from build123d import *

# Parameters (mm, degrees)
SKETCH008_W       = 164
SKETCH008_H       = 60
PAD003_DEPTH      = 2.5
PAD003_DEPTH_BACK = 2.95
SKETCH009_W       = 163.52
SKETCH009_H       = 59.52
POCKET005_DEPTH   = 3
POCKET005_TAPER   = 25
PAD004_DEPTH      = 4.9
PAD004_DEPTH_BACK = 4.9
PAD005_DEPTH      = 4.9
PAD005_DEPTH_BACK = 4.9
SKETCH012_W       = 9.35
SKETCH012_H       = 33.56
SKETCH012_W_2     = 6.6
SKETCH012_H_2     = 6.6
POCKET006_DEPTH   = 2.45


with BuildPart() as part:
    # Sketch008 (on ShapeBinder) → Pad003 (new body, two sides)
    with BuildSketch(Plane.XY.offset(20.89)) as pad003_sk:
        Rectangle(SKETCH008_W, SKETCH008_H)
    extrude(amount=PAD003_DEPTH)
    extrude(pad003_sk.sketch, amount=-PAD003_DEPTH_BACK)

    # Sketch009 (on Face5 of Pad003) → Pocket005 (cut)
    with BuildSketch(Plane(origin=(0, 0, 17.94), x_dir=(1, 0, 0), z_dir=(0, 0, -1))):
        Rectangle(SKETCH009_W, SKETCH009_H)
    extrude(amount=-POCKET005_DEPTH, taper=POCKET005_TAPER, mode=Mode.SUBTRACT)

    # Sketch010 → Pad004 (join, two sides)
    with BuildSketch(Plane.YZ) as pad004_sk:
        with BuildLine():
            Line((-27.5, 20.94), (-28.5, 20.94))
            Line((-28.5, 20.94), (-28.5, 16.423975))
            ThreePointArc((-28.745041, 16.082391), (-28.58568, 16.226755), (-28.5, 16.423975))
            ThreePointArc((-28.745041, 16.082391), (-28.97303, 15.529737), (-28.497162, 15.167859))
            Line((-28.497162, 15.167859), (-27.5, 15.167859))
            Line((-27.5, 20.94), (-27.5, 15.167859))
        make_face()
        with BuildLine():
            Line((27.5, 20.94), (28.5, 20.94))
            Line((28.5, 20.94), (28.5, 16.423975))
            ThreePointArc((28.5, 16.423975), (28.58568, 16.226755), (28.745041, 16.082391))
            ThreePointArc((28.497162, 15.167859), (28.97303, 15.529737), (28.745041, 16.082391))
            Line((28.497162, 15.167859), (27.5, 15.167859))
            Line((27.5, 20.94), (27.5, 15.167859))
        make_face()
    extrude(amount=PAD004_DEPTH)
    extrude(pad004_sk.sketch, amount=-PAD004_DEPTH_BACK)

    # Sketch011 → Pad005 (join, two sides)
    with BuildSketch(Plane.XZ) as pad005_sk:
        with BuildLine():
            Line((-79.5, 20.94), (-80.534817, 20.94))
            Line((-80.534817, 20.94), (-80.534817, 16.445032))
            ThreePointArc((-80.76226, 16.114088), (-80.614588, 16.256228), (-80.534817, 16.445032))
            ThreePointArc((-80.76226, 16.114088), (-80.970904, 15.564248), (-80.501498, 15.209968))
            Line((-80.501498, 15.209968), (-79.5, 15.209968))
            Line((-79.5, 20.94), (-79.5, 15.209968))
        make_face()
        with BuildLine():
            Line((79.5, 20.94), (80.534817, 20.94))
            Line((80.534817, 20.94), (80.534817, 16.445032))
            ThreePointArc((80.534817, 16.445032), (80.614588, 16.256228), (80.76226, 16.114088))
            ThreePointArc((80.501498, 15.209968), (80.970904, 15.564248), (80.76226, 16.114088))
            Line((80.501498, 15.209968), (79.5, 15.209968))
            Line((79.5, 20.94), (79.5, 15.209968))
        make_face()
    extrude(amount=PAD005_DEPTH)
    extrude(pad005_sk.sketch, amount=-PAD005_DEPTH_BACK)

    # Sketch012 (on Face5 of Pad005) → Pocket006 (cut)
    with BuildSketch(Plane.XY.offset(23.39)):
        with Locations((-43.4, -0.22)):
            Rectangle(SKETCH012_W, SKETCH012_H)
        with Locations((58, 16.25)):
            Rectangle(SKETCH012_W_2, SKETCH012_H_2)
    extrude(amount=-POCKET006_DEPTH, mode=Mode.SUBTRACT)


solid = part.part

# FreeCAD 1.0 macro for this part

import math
import FreeCAD as App
import Part
import Sketcher

V = App.Vector

doc = App.newDocument("Part")
body = doc.addObject("PartDesign::Body", "Body")

sketch1 = body.newObject("Sketcher::SketchObject", "Sketch")
sketch1.AttachmentSupport = (doc.getObject("XY_Plane"), [""])
sketch1.MapMode = "FlatFace"
sketch1.AttachmentOffset = App.Placement(V(0, 0, 20.89), App.Rotation())
sketch1.addGeometry([
    Part.LineSegment(V(-82, 30, 0), V(-82, -30, 0)),
    Part.LineSegment(V(-82, -30, 0), V(82, -30, 0)),
    Part.LineSegment(V(82, -30, 0), V(82, 30, 0)),
    Part.LineSegment(V(82, 30, 0), V(-82, 30, 0)),
], False)
sketch1.addConstraint([
    Sketcher.Constraint("Coincident", 0, 2, 1, 1),
    Sketcher.Constraint("Coincident", 1, 2, 2, 1),
    Sketcher.Constraint("Coincident", 2, 2, 3, 1),
    Sketcher.Constraint("Coincident", 3, 2, 0, 1),
    Sketcher.Constraint("Vertical", 0),
    Sketcher.Constraint("Horizontal", 1),
    Sketcher.Constraint("Vertical", 2),
    Sketcher.Constraint("Horizontal", 3),
    Sketcher.Constraint("Symmetric", 0, 2, 2, 2, -1, 1),
    Sketcher.Constraint("DistanceX", 1, 1, 1, 2, 164.0),
    Sketcher.Constraint("DistanceY", 0, 2, 0, 1, 60.0),
])
pad1 = body.newObject("PartDesign::Pad", "Pad")
pad1.Profile = sketch1
pad1.Type = "TwoLengths"
pad1.Length = 2.5
pad1.Length2 = 2.95

sketch2 = body.newObject("Sketcher::SketchObject", "Sketch001")
sketch2.AttachmentSupport = (doc.getObject("XY_Plane"), [""])
sketch2.MapMode = "FlatFace"
sketch2.AttachmentOffset = App.Placement(V(0, 0, 17.94), App.Rotation())
sketch2.addGeometry([
    Part.LineSegment(V(-82, -30, 0), V(-82, 30, 0)),
    Part.LineSegment(V(-82, 30, 0), V(82, 30, 0)),
    Part.LineSegment(V(82, 30, 0), V(82, -30, 0)),
    Part.LineSegment(V(82, -30, 0), V(-82, -30, 0)),
], False)
sketch2.addConstraint([
    Sketcher.Constraint("Coincident", 0, 2, 1, 1),
    Sketcher.Constraint("Coincident", 1, 2, 2, 1),
    Sketcher.Constraint("Coincident", 2, 2, 3, 1),
    Sketcher.Constraint("Coincident", 3, 2, 0, 1),
    Sketcher.Constraint("Vertical", 0),
    Sketcher.Constraint("Horizontal", 1),
    Sketcher.Constraint("Vertical", 2),
    Sketcher.Constraint("Horizontal", 3),
    Sketcher.Constraint("Symmetric", 0, 2, 2, 2, -1, 1),
    Sketcher.Constraint("DistanceX", 1, 1, 1, 2, 163.52),
    Sketcher.Constraint("DistanceY", 0, 1, 0, 2, 59.52),
])
pocket1 = body.newObject("PartDesign::Pocket", "Pocket")
pocket1.Profile = sketch2
pocket1.Length = 3
pocket1.Reversed = True
pocket1.TaperAngle = -25

sketch3 = body.newObject("Sketcher::SketchObject", "Sketch002")
sketch3.AttachmentSupport = (doc.getObject("YZ_Plane"), [""])
sketch3.MapMode = "FlatFace"
sketch3.addGeometry([
    Part.LineSegment(V(-27.5, 20.94, 0), V(-28.5, 20.94, 0)),
    Part.LineSegment(V(-28.5, 20.94, 0), V(-28.5, 16.423975, 0)),
    Part.ArcOfCircle(Part.Circle(V(-28.999996, 16.523971, 0), V(0, 0, 1), 0.509897), math.radians(-59.9992), math.radians(-11.309598)),
    Part.ArcOfCircle(Part.Circle(V(-28.499999, 15.657949, 0), V(0, 0, 1), 0.490098), math.radians(119.998989), math.radians(270.331705)),
    Part.LineSegment(V(-28.497162, 15.167859, 0), V(-27.5, 15.167859, 0)),
    Part.LineSegment(V(-27.5, 15.167859, 0), V(-27.5, 20.94, 0)),
    Part.LineSegment(V(28.5, 20.94, 0), V(27.5, 20.94, 0)),
    Part.LineSegment(V(27.5, 20.94, 0), V(27.5, 15.167859, 0)),
    Part.LineSegment(V(27.5, 15.167859, 0), V(28.497162, 15.167859, 0)),
    Part.ArcOfCircle(Part.Circle(V(28.499999, 15.657949, 0), V(0, 0, 1), 0.490098), math.radians(-90.331705), math.radians(60.001011)),
    Part.ArcOfCircle(Part.Circle(V(28.999996, 16.523971, 0), V(0, 0, 1), 0.509897), math.radians(-168.690402), math.radians(-120.0008)),
    Part.LineSegment(V(28.5, 16.423975, 0), V(28.5, 20.94, 0)),
], False)
sketch3.addConstraint([
    Sketcher.Constraint("Coincident", 0, 2, 1, 1),
    Sketcher.Constraint("Coincident", 1, 2, 2, 2),
    Sketcher.Constraint("Coincident", 2, 1, 3, 1),
    Sketcher.Constraint("Coincident", 3, 2, 4, 1),
    Sketcher.Constraint("Coincident", 4, 2, 5, 1),
    Sketcher.Constraint("Coincident", 5, 2, 0, 1),
    Sketcher.Constraint("Coincident", 6, 2, 7, 1),
    Sketcher.Constraint("Coincident", 7, 2, 8, 1),
    Sketcher.Constraint("Coincident", 8, 2, 9, 1),
    Sketcher.Constraint("Coincident", 9, 2, 10, 2),
    Sketcher.Constraint("Coincident", 10, 1, 11, 1),
    Sketcher.Constraint("Coincident", 11, 2, 6, 1),
    Sketcher.Constraint("Horizontal", 0),
    Sketcher.Constraint("Vertical", 1),
    Sketcher.Constraint("Horizontal", 4),
    Sketcher.Constraint("Vertical", 5),
    Sketcher.Constraint("Horizontal", 6),
    Sketcher.Constraint("Vertical", 7),
    Sketcher.Constraint("Horizontal", 8),
    Sketcher.Constraint("Vertical", 11),
    Sketcher.Constraint("Equal", 3, 9),
    Sketcher.Constraint("Equal", 2, 10),
    Sketcher.Constraint("Symmetric", 3, 3, 9, 3, -2),
    Sketcher.Constraint("Symmetric", 5, 2, 6, 2, -2),
    Sketcher.Constraint("Symmetric", 1, 2, 10, 1, -2),
    Sketcher.Constraint("Horizontal", 4, 2, 7, 2),
    Sketcher.Constraint("Horizontal", 2, 1, 9, 2),
    Sketcher.Constraint("Vertical", 3, 3, 0, 2),
    Sketcher.Constraint("DistanceX", 0, 2, 0, 1, 1.0),
    Sketcher.Constraint("DistanceX", 3, 3, 9, 3, 56.999999),
    Sketcher.Constraint("Radius", 3, 0.490098),
    Sketcher.Constraint("DistanceY", -1, 1, 0, 2, 20.94),
    Sketcher.Constraint("Radius", 2, 0.509897),
    Sketcher.Constraint("DistanceX", 4, 1, 4, 2, 0.997162),
    Sketcher.Constraint("DistanceY", 5, 1, 5, 2, 5.772141),
    Sketcher.Constraint("DistanceY", 1, 2, 1, 1, 4.516025),
    Sketcher.Constraint("DistanceX", 2, 1, -1, 1, 28.745041),
])
pad2 = body.newObject("PartDesign::Pad", "Pad001")
pad2.Profile = sketch3
pad2.Type = "TwoLengths"
pad2.Length = 4.9
pad2.Length2 = 4.9

sketch4 = body.newObject("Sketcher::SketchObject", "Sketch003")
sketch4.AttachmentSupport = (doc.getObject("XZ_Plane"), [""])
sketch4.MapMode = "FlatFace"
sketch4.addGeometry([
    Part.LineSegment(V(-79.5, 20.94, 0), V(-80.53, 20.94, 0)),
    Part.LineSegment(V(-80.53, 20.94, 0), V(-80.53, 16.45, 0)),
    Part.ArcOfCircle(Part.Circle(V(-81.03, 16.55, 0), V(0, 0, 1), 0.51), math.radians(-58), math.radians(-11)),
    Part.ArcOfCircle(Part.Circle(V(-80.5, 15.7, 0), V(0, 0, 1), 0.49), math.radians(122), math.radians(270)),
    Part.LineSegment(V(-80.5, 15.21, 0), V(-79.5, 15.21, 0)),
    Part.LineSegment(V(-79.5, 15.21, 0), V(-79.5, 20.94, 0)),
    Part.LineSegment(V(80.53, 20.94, 0), V(79.5, 20.94, 0)),
    Part.LineSegment(V(79.5, 20.94, 0), V(79.5, 15.21, 0)),
    Part.LineSegment(V(79.5, 15.21, 0), V(80.5, 15.21, 0)),
    Part.ArcOfCircle(Part.Circle(V(80.5, 15.7, 0), V(0, 0, 1), 0.49), math.radians(-90), math.radians(58)),
    Part.ArcOfCircle(Part.Circle(V(81.03, 16.55, 0), V(0, 0, 1), 0.51), math.radians(-169), math.radians(-122)),
    Part.LineSegment(V(80.53, 16.45, 0), V(80.53, 20.94, 0)),
], False)
sketch4.addConstraint([
    Sketcher.Constraint("Coincident", 0, 2, 1, 1),
    Sketcher.Constraint("Coincident", 1, 2, 2, 2),
    Sketcher.Constraint("Coincident", 2, 1, 3, 1),
    Sketcher.Constraint("Coincident", 3, 2, 4, 1),
    Sketcher.Constraint("Coincident", 4, 2, 5, 1),
    Sketcher.Constraint("Coincident", 5, 2, 0, 1),
    Sketcher.Constraint("Coincident", 6, 2, 7, 1),
    Sketcher.Constraint("Coincident", 7, 2, 8, 1),
    Sketcher.Constraint("Coincident", 8, 2, 9, 1),
    Sketcher.Constraint("Coincident", 9, 2, 10, 2),
    Sketcher.Constraint("Coincident", 10, 1, 11, 1),
    Sketcher.Constraint("Coincident", 11, 2, 6, 1),
    Sketcher.Constraint("Horizontal", 0),
    Sketcher.Constraint("Vertical", 1),
    Sketcher.Constraint("Horizontal", 4),
    Sketcher.Constraint("Vertical", 5),
    Sketcher.Constraint("Horizontal", 6),
    Sketcher.Constraint("Vertical", 7),
    Sketcher.Constraint("Horizontal", 8),
    Sketcher.Constraint("Vertical", 11),
    Sketcher.Constraint("Equal", 3, 9),
    Sketcher.Constraint("Equal", 2, 10),
    Sketcher.Constraint("Symmetric", 3, 3, 9, 3, -2),
    Sketcher.Constraint("Symmetric", 5, 2, 6, 2, -2),
    Sketcher.Constraint("Symmetric", 1, 2, 10, 1, -2),
    Sketcher.Constraint("Horizontal", 2, 1, 9, 2),
    Sketcher.Constraint("Equal", 4, 8),
    Sketcher.Constraint("DistanceX", 3, 3, 9, 3, 161.000001),
    Sketcher.Constraint("DistanceX", 3, 3, 4, 2, 1.0),
    Sketcher.Constraint("Radius", 2, 0.5099),
    Sketcher.Constraint("Radius", 3, 0.490098),
    Sketcher.Constraint("DistanceX", 2, 3, 0, 2, 0.499999),
    Sketcher.Constraint("DistanceY", -1, 1, 0, 2, 20.94),
    Sketcher.Constraint("DistanceX", -1, 1, 8, 2, 80.501498),
    Sketcher.Constraint("DistanceX", 0, 2, 0, 1, 1.034817),
    Sketcher.Constraint("DistanceY", 1, 2, 1, 1, 4.494968),
    Sketcher.Constraint("DistanceX", 2, 1, -1, 1, 80.76226),
])
pad3 = body.newObject("PartDesign::Pad", "Pad002")
pad3.Profile = sketch4
pad3.Type = "TwoLengths"
pad3.Length = 4.9
pad3.Length2 = 4.9

sketch5 = body.newObject("Sketcher::SketchObject", "Sketch004")
sketch5.AttachmentSupport = (doc.getObject("XY_Plane"), [""])
sketch5.MapMode = "FlatFace"
sketch5.AttachmentOffset = App.Placement(V(0, 0, 23.39), App.Rotation())
sketch5.addGeometry([
    Part.LineSegment(V(-48, 17, 0), V(-48, -17, 0)),
    Part.LineSegment(V(-48, -17, 0), V(-39, -17, 0)),
    Part.LineSegment(V(-39, -17, 0), V(-39, 17, 0)),
    Part.LineSegment(V(-39, 17, 0), V(-48, 17, 0)),
    Part.LineSegment(V(55, 20, 0), V(55, 13, 0)),
    Part.LineSegment(V(55, 13, 0), V(61, 13, 0)),
    Part.LineSegment(V(61, 13, 0), V(61, 20, 0)),
    Part.LineSegment(V(61, 20, 0), V(55, 20, 0)),
], False)
sketch5.addConstraint([
    Sketcher.Constraint("Coincident", 0, 2, 1, 1),
    Sketcher.Constraint("Coincident", 1, 2, 2, 1),
    Sketcher.Constraint("Coincident", 2, 2, 3, 1),
    Sketcher.Constraint("Coincident", 3, 2, 0, 1),
    Sketcher.Constraint("Coincident", 4, 2, 5, 1),
    Sketcher.Constraint("Coincident", 5, 2, 6, 1),
    Sketcher.Constraint("Coincident", 6, 2, 7, 1),
    Sketcher.Constraint("Coincident", 7, 2, 4, 1),
    Sketcher.Constraint("Vertical", 0),
    Sketcher.Constraint("Horizontal", 1),
    Sketcher.Constraint("Vertical", 2),
    Sketcher.Constraint("Horizontal", 3),
    Sketcher.Constraint("Vertical", 4),
    Sketcher.Constraint("Horizontal", 5),
    Sketcher.Constraint("Vertical", 6),
    Sketcher.Constraint("Horizontal", 7),
    Sketcher.Constraint("Equal", 7, 4),
    Sketcher.Constraint("DistanceX", 5, 1, 5, 2, 6.6),
    Sketcher.Constraint("DistanceY", 0, 2, -1, 1, 17.0),
    Sketcher.Constraint("DistanceX", 1, 1, 1, 2, 9.35),
    Sketcher.Constraint("DistanceY", 0, 2, 0, 1, 33.56),
    Sketcher.Constraint("DistanceX", -1, 1, 4, 2, 54.7),
    Sketcher.Constraint("DistanceY", -1, 1, 4, 2, 12.95),
    Sketcher.Constraint("DistanceX", 0, 2, -1, 1, 48.075),
])
pocket2 = body.newObject("PartDesign::Pocket", "Pocket001")
pocket2.Profile = sketch5
pocket2.Length = 2.45

doc.recompute()
